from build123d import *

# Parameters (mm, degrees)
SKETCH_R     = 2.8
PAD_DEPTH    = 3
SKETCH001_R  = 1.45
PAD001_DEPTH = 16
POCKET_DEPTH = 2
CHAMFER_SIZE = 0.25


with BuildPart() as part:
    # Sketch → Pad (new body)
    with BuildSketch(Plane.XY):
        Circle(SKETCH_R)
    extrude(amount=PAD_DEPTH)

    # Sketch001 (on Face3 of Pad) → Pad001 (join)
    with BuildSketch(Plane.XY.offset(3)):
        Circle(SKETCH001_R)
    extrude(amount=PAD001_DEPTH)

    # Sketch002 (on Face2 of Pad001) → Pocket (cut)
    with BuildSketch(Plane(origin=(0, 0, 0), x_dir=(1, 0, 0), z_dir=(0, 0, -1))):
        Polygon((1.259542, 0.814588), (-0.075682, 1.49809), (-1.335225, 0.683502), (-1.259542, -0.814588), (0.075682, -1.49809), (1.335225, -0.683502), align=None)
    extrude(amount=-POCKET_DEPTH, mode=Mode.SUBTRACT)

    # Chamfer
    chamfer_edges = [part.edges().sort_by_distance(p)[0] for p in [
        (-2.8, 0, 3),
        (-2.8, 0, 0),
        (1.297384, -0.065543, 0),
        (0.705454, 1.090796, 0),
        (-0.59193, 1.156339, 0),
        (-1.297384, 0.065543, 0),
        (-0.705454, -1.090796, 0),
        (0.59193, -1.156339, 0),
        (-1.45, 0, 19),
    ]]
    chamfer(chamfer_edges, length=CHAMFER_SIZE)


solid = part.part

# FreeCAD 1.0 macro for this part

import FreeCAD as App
import Part
import Sketcher

V = App.Vector
Q = App.Units.Quantity


def edges_at(feature, points):
    """Names of the edges that pass closest to the given points."""
    edges = feature.Shape.Edges
    near = lambda p: min(range(len(edges)), key=lambda i: edges[i].distToShape(Part.Vertex(*p))[0])
    return sorted({f"Edge{near(p) + 1}" for p in points})


def add_polygon(sketch, points):
    """Adds a closed chain of lines whose ends are joined by coincident constraints."""
    first, n = sketch.GeometryCount, len(points)
    for a, b in zip(points, points[1:] + points[:1]):
        sketch.addGeometry(Part.LineSegment(App.Vector(*a, 0), App.Vector(*b, 0)), False)
    for i in range(n):
        sketch.addConstraint(Sketcher.Constraint("Coincident", first + i, 2, first + (i + 1) % n, 1))

doc = App.newDocument("Part")
body = doc.addObject("PartDesign::Body", "Body")

# Sketch on XY plane
sketch1 = body.newObject("Sketcher::SketchObject", "Sketch")
sketch1.AttachmentSupport = (doc.getObject("XY_Plane"), [""])
sketch1.MapMode = "FlatFace"
sketch1.addGeometry(Part.Circle(V(0, 0, 0), V(0, 0, 1), 2.8), False)
sketch1.addConstraint(Sketcher.Constraint("Coincident", 0, 3, -1, 1))
sketch1.addConstraint(Sketcher.Constraint("Diameter", 0, Q("5.6 mm")))
pad1 = body.newObject("PartDesign::Pad", "Pad")
pad1.Profile = sketch1
pad1.Length = 3

# Sketch on XY plane
sketch2 = body.newObject("Sketcher::SketchObject", "Sketch001")
sketch2.AttachmentSupport = (doc.getObject("XY_Plane"), [""])
sketch2.MapMode = "FlatFace"
sketch2.AttachmentOffset = App.Placement(V(0, 0, 3), App.Rotation())
sketch2.addGeometry(Part.Circle(V(0, 0, 0), V(0, 0, 1), 1.4), False)
sketch2.addConstraint(Sketcher.Constraint("Coincident", 0, 3, -1, 1))
sketch2.addConstraint(Sketcher.Constraint("Diameter", 0, Q("2.9 mm")))
pad2 = body.newObject("PartDesign::Pad", "Pad001")
pad2.Profile = sketch2
pad2.Length = 16

# Sketch on XY plane
sketch3 = body.newObject("Sketcher::SketchObject", "Sketch002")
sketch3.AttachmentSupport = (doc.getObject("XY_Plane"), [""])
sketch3.MapMode = "FlatFace"
add_polygon(sketch3, [(1.3, -0.8), (-0.1, -1.5), (-1.3, -0.7), (-1.3, 0.8), (0.1, 1.5), (1.3, 0.7)])  # lines 0-5
sketch3.addConstraint(Sketcher.Constraint("Symmetric", 0, 2, 3, 2, -1, 1))
sketch3.addConstraint(Sketcher.Constraint("Symmetric", 1, 2, 4, 2, -1, 1))
sketch3.addConstraint(Sketcher.Constraint("Symmetric", 2, 2, 5, 2, -1, 1))
sketch3.addConstraint(Sketcher.Constraint("Equal", 0, 1))
sketch3.addConstraint(Sketcher.Constraint("Equal", 1, 2))
sketch3.addConstraint(Sketcher.Constraint("Distance", 0, Q("1.499999 mm")))
sketch3.addConstraint(Sketcher.Constraint("DistanceY", 2, 2, 3, 2, Q("0.683502 mm")))
sketch3.addConstraint(Sketcher.Constraint("DistanceY", 0, 2, -1, 1, Q("1.49809 mm")))
sketch3.addConstraint(Sketcher.Constraint("DistanceX", 2, 2, -1, 1, Q("1.259542 mm")))
pocket1 = body.newObject("PartDesign::Pocket", "Pocket")
pocket1.Profile = sketch3
pocket1.Length = 2
pocket1.Reversed = True
doc.recompute()

chamfer = body.newObject("PartDesign::Chamfer", "Chamfer")
chamfer.Base = (pocket1, edges_at(pocket1, [
    (-2.8, 0, 3),
    (-2.8, 0, 0),
    (1.297, -0.066, 0),
    (0.705, 1.091, 0),
    (-0.592, 1.156, 0),
    (-1.297, 0.066, 0),
    (-0.705, -1.091, 0),
    (0.592, -1.156, 0),
    (-1.45, 0, 19),
]))
chamfer.Size = 0.25

doc.recompute()
